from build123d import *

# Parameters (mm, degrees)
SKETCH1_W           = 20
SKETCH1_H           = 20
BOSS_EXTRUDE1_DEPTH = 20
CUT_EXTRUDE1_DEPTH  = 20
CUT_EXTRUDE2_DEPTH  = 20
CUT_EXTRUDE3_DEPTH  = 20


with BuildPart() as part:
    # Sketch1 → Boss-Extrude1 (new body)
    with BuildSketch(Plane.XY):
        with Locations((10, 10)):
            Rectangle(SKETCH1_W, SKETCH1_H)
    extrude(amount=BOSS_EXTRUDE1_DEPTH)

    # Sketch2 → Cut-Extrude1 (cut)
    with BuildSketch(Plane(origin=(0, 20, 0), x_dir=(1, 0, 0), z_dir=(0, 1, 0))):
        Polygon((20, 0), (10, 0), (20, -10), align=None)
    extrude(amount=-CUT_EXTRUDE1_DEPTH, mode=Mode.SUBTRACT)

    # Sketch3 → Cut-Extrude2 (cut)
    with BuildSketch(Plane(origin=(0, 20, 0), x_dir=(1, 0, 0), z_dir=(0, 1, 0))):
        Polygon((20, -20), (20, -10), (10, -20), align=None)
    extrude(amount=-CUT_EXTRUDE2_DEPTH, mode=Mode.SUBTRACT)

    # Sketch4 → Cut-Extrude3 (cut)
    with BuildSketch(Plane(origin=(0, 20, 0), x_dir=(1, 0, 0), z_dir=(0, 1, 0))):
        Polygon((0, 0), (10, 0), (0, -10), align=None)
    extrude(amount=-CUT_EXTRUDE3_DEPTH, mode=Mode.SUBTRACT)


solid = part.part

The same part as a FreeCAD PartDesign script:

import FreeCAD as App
import Part
import Sketcher


def add_polygon(sketch, points):
    """Adds a closed chain of lines whose ends are joined by coincident constraints."""
    first, n = sketch.GeometryCount, len(points)
    for a, b in zip(points, points[1:] + points[:1]):
        sketch.addGeometry(Part.LineSegment(App.Vector(*a, 0), App.Vector(*b, 0)), False)
    for i in range(n):
        sketch.addConstraint(Sketcher.Constraint("Coincident", first + i, 2, first + (i + 1) % n, 1))

doc = App.newDocument("Part")
body = doc.addObject("PartDesign::Body", "Body")

sketch1 = body.newObject("Sketcher::SketchObject", "Sketch")
sketch1.AttachmentSupport = (doc.getObject("XY_Plane"), [""])
sketch1.MapMode = "FlatFace"
add_polygon(sketch1, [(0, 20), (0, 0), (20, 0), (20, 20)])
sketch1.addConstraint([
    Sketcher.Constraint("Vertical", 0),
    Sketcher.Constraint("Horizontal", 1),
    Sketcher.Constraint("Vertical", 2),
    Sketcher.Constraint("Horizontal", 3),
    Sketcher.Constraint("Coincident", 0, 2, -1, 1),
    Sketcher.Constraint("Equal", 3, 0),
    Sketcher.Constraint("DistanceX", 1, 1, 1, 2, 20.0),
])
pad1 = body.newObject("PartDesign::Pad", "Pad")
pad1.Profile = sketch1
pad1.Length = 20

sketch2 = body.newObject("Sketcher::SketchObject", "Sketch001")
sketch2.AttachmentSupport = (doc.getObject("XZ_Plane"), [""])
sketch2.MapMode = "FlatFace"
sketch2.AttachmentOffset = App.Placement(App.Vector(0, 0, -20), App.Rotation())
add_polygon(sketch2, [(20, 0), (10, 0), (20, 10)])
sketch2.addConstraint([
    Sketcher.Constraint("Horizontal", 0),
    Sketcher.Constraint("Vertical", 2),
    Sketcher.Constraint("PointOnObject", 0, 2, -1),
    Sketcher.Constraint("Equal", 0, 2),
    Sketcher.Constraint("DistanceX", 0, 2, 0, 1, 10.0),
    Sketcher.Constraint("DistanceX", -1, 1, 0, 2, 10.0),
])
pocket1 = body.newObject("PartDesign::Pocket", "Pocket")
pocket1.Profile = sketch2
pocket1.Length = 20
pocket1.Reversed = True

sketch3 = body.newObject("Sketcher::SketchObject", "Sketch002")
sketch3.AttachmentSupport = (doc.getObject("XZ_Plane"), [""])
sketch3.MapMode = "FlatFace"
sketch3.AttachmentOffset = App.Placement(App.Vector(0, 0, -20), App.Rotation())
add_polygon(sketch3, [(20, 20), (20, 10), (10, 20)])
sketch3.addConstraint([
    Sketcher.Constraint("Vertical", 0),
    Sketcher.Constraint("Horizontal", 2),
    Sketcher.Constraint("Equal", 2, 0),
    Sketcher.Constraint("DistanceX", 2, 1, 2, 2, 10.0),
    Sketcher.Constraint("DistanceX", -1, 1, 0, 2, 20.0),
    Sketcher.Constraint("DistanceY", -1, 1, 0, 2, 10.0),
])
pocket2 = body.newObject("PartDesign::Pocket", "Pocket001")
pocket2.Profile = sketch3
pocket2.Length = 20
pocket2.Reversed = True

sketch4 = body.newObject("Sketcher::SketchObject", "Sketch003")
sketch4.AttachmentSupport = (doc.getObject("XZ_Plane"), [""])
sketch4.MapMode = "FlatFace"
sketch4.AttachmentOffset = App.Placement(App.Vector(0, 0, -20), App.Rotation())
add_polygon(sketch4, [(10, 0), (0, 0), (0, 10)])
sketch4.addConstraint([
    Sketcher.Constraint("Horizontal", 0),
    Sketcher.Constraint("Vertical", 1),
    Sketcher.Constraint("Coincident", 0, 2, -1, 1),
    Sketcher.Constraint("Equal", 0, 1),
    Sketcher.Constraint("DistanceX", 0, 2, 0, 1, 10.0),
])
pocket3 = body.newObject("PartDesign::Pocket", "Pocket002")
pocket3.Profile = sketch4
pocket3.Length = 20
pocket3.Reversed = True

doc.recompute()
